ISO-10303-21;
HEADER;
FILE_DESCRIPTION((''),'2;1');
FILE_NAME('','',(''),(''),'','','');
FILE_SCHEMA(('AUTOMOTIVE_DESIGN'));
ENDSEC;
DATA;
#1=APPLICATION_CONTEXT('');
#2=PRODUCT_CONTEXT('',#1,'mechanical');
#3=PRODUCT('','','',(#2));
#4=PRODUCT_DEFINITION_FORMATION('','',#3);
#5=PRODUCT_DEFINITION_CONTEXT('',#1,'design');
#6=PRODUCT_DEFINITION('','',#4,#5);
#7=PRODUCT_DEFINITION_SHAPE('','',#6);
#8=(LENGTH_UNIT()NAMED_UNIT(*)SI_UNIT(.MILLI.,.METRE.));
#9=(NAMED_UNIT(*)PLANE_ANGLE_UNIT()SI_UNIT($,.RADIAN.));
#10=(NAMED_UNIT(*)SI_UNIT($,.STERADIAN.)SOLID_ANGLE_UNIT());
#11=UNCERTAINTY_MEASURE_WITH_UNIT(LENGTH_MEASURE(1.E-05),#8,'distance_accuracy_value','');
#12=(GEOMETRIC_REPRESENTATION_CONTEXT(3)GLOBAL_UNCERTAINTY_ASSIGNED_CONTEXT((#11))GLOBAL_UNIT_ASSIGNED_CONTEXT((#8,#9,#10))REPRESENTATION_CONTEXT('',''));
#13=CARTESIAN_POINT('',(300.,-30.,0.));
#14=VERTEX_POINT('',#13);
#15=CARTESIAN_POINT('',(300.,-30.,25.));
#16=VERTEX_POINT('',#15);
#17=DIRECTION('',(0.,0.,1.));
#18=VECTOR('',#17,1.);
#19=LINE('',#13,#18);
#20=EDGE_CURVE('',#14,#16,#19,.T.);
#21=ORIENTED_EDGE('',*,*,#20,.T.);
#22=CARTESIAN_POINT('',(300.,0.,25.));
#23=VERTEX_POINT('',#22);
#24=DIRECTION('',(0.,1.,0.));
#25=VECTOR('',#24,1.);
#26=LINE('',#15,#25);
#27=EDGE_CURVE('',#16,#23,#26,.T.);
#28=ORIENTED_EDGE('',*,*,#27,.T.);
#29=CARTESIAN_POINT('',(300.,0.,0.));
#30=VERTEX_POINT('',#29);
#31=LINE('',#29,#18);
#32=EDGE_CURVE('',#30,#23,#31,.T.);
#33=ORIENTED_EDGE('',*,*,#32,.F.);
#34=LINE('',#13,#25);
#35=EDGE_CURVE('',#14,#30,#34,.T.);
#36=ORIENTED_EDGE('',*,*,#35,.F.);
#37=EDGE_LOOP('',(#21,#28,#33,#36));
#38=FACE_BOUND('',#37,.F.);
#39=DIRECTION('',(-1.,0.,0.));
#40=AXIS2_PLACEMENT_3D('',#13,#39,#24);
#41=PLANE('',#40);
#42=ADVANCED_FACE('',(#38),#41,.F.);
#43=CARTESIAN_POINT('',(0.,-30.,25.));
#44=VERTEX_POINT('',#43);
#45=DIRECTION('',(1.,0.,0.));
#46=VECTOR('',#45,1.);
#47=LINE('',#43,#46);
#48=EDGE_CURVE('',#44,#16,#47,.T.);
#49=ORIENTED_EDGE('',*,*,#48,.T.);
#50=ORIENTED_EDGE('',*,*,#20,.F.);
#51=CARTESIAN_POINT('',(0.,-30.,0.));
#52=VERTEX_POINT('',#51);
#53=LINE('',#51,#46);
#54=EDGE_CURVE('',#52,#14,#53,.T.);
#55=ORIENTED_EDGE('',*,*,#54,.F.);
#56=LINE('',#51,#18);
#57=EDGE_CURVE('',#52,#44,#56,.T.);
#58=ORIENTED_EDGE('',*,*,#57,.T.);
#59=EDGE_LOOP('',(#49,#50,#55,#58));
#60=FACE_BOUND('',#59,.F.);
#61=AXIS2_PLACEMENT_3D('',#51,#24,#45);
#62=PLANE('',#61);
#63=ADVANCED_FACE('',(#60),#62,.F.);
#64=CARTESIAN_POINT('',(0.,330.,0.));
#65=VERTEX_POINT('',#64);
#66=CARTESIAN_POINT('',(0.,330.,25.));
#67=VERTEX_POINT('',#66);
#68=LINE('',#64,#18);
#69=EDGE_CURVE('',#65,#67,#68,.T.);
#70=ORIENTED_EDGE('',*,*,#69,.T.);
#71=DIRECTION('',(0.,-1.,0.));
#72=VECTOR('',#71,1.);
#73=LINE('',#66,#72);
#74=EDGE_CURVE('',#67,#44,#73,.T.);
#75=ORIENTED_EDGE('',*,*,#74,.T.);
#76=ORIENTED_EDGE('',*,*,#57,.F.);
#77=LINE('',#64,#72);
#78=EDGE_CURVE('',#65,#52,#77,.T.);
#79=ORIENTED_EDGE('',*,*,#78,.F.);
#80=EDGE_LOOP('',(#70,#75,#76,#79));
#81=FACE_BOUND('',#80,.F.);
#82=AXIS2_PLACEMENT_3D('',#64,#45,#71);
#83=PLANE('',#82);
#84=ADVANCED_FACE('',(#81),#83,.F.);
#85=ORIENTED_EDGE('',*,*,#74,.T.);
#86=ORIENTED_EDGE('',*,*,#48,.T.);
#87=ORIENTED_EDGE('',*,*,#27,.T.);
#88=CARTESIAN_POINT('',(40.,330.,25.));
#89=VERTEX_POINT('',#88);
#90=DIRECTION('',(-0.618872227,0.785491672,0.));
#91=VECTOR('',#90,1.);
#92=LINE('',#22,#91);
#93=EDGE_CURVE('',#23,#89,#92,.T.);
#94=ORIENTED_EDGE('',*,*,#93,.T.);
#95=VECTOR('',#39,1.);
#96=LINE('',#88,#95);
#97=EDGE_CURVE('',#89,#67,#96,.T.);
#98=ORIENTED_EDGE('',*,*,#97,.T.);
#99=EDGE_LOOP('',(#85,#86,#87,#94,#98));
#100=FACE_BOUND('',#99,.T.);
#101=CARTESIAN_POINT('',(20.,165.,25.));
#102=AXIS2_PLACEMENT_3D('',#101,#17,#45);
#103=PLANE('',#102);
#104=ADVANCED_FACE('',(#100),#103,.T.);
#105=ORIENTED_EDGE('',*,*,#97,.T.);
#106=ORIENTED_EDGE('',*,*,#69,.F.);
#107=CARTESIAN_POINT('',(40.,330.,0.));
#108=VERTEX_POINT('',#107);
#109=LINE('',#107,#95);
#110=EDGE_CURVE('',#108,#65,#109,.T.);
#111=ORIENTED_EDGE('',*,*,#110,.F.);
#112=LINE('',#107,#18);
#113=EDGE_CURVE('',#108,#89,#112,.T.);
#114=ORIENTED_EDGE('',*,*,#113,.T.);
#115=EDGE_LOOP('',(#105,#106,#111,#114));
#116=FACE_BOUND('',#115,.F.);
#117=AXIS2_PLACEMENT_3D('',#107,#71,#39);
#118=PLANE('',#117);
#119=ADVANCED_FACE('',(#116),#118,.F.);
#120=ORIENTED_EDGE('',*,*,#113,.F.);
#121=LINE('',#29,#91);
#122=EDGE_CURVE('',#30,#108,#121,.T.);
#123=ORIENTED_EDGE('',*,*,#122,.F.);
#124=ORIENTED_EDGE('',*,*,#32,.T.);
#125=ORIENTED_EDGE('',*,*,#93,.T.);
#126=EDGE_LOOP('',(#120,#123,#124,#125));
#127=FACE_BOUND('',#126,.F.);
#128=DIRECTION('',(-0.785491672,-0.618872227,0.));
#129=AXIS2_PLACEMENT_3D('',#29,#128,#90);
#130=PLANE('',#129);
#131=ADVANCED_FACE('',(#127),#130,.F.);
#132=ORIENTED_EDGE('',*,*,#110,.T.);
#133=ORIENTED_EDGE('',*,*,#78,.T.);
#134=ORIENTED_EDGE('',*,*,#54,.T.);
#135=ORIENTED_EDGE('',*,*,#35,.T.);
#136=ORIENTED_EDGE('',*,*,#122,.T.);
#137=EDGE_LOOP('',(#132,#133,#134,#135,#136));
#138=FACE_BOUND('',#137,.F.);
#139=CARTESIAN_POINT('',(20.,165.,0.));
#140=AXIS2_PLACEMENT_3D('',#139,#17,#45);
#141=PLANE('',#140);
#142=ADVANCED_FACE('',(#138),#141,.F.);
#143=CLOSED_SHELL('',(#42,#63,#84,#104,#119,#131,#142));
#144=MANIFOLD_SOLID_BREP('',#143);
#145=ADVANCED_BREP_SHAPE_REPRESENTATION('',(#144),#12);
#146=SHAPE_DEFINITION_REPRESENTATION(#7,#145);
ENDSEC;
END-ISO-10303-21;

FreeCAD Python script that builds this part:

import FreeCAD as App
import Part
import Sketcher

V = App.Vector
Q = App.Units.Quantity


def add_polygon(sketch, points):
    """Adds a closed chain of lines whose ends are joined by coincident constraints."""
    first, n = sketch.GeometryCount, len(points)
    for a, b in zip(points, points[1:] + points[:1]):
        sketch.addGeometry(Part.LineSegment(App.Vector(*a, 0), App.Vector(*b, 0)), False)
    for i in range(n):
        sketch.addConstraint(Sketcher.Constraint("Coincident", first + i, 2, first + (i + 1) % n, 1))

doc = App.newDocument("Part")
body = doc.addObject("PartDesign::Body", "Body")

# Sketch on XY plane
sketch1 = body.newObject("Sketcher::SketchObject", "Sketch")
sketch1.AttachmentSupport = (doc.getObject("XY_Plane"), [""])
sketch1.MapMode = "FlatFace"
add_polygon(sketch1, [(40, 330), (0, 330), (0, -30), (300, -30), (300, 0)])  # lines 0-4
sketch1.addConstraint(Sketcher.Constraint("Horizontal", 0))
sketch1.addConstraint(Sketcher.Constraint("Vertical", 1))
sketch1.addConstraint(Sketcher.Constraint("Horizontal", 2))
sketch1.addConstraint(Sketcher.Constraint("Vertical", 3))
sketch1.addConstraint(Sketcher.Constraint("PointOnObject", 0, 2, -2))
sketch1.addConstraint(Sketcher.Constraint("PointOnObject", 3, 2, -1))
sketch1.addConstraint(Sketcher.Constraint("DistanceX", 0, 2, 0, 1, Q("40 mm")))
sketch1.addConstraint(Sketcher.Constraint("DistanceX", 2, 1, 2, 2, Q("300 mm")))
sketch1.addConstraint(Sketcher.Constraint("DistanceY", 1, 2, 1, 1, Q("360 mm")))
sketch1.addConstraint(Sketcher.Constraint("DistanceY", 3, 1, 3, 2, Q("30 mm")))
pad1 = body.newObject("PartDesign::Pad", "Pad")
pad1.Profile = sketch1
pad1.Length = 25

doc.recompute()
